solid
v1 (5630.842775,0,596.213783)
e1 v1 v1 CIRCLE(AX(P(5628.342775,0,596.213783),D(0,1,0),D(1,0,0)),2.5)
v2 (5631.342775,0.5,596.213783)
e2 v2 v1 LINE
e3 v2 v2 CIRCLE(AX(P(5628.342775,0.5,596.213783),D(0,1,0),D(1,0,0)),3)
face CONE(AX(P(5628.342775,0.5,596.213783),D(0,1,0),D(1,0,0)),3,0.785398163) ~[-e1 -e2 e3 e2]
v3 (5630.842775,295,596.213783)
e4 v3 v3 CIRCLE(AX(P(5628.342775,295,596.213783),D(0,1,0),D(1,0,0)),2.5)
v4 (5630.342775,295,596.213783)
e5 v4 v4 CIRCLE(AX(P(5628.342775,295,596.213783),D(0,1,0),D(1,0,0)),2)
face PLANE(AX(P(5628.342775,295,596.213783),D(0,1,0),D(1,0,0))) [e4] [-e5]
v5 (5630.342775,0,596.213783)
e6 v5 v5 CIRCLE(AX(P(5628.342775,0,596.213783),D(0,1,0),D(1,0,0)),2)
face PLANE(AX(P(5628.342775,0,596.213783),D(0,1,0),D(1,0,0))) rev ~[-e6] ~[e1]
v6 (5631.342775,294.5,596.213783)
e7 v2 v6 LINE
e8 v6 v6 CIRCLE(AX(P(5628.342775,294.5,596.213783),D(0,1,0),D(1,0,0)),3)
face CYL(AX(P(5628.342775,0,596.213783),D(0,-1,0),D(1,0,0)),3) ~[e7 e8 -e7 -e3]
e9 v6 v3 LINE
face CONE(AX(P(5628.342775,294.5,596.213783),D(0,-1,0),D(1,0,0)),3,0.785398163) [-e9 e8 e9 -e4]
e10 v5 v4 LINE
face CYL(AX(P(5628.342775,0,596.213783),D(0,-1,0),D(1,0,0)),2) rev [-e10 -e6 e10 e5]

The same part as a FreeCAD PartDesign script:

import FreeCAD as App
import Part
import Sketcher

V = App.Vector


def edges_at(feature, points):
    """Names of the edges that pass closest to the given points."""
    edges = feature.Shape.Edges
    near = lambda p: min(range(len(edges)), key=lambda i: edges[i].distToShape(Part.Vertex(*p))[0])
    return sorted({f"Edge{near(p) + 1}" for p in points})

doc = App.newDocument("Part")
body = doc.addObject("PartDesign::Body", "Body")

sketch1 = body.newObject("Sketcher::SketchObject", "Sketch")
sketch1.AttachmentSupport = (doc.getObject("XZ_Plane"), [""])
sketch1.MapMode = "FlatFace"
sketch1.addGeometry(Part.Circle(V(5628.3, 596.2, 0), V(0, 0, 1), 3), False)
sketch1.addGeometry(Part.Circle(V(5628.3, 596.2, 0), V(0, 0, 1), 2), False)
sketch1.addConstraint(Sketcher.Constraint("Coincident", 1, 3, 0, 3))
sketch1.addConstraint(Sketcher.Constraint("Diameter", 0, 6.0))
sketch1.addConstraint(Sketcher.Constraint("Diameter", 1, 4.0))
sketch1.addConstraint(Sketcher.Constraint("DistanceX", -1, 1, 0, 3, 5628.342775))
sketch1.addConstraint(Sketcher.Constraint("DistanceY", -1, 1, 0, 3, 596.213783))
pad1 = body.newObject("PartDesign::Pad", "Pad")
pad1.Profile = sketch1
pad1.Length = 295
pad1.Reversed = True
doc.recompute()

chamfer = body.newObject("PartDesign::Chamfer", "Chamfer")
chamfer.Base = (pad1, edges_at(pad1, [(5625.343, 0, 596.214), (5625.343, 295, 596.214)]))
chamfer.Size = 0.5

doc.recompute()
